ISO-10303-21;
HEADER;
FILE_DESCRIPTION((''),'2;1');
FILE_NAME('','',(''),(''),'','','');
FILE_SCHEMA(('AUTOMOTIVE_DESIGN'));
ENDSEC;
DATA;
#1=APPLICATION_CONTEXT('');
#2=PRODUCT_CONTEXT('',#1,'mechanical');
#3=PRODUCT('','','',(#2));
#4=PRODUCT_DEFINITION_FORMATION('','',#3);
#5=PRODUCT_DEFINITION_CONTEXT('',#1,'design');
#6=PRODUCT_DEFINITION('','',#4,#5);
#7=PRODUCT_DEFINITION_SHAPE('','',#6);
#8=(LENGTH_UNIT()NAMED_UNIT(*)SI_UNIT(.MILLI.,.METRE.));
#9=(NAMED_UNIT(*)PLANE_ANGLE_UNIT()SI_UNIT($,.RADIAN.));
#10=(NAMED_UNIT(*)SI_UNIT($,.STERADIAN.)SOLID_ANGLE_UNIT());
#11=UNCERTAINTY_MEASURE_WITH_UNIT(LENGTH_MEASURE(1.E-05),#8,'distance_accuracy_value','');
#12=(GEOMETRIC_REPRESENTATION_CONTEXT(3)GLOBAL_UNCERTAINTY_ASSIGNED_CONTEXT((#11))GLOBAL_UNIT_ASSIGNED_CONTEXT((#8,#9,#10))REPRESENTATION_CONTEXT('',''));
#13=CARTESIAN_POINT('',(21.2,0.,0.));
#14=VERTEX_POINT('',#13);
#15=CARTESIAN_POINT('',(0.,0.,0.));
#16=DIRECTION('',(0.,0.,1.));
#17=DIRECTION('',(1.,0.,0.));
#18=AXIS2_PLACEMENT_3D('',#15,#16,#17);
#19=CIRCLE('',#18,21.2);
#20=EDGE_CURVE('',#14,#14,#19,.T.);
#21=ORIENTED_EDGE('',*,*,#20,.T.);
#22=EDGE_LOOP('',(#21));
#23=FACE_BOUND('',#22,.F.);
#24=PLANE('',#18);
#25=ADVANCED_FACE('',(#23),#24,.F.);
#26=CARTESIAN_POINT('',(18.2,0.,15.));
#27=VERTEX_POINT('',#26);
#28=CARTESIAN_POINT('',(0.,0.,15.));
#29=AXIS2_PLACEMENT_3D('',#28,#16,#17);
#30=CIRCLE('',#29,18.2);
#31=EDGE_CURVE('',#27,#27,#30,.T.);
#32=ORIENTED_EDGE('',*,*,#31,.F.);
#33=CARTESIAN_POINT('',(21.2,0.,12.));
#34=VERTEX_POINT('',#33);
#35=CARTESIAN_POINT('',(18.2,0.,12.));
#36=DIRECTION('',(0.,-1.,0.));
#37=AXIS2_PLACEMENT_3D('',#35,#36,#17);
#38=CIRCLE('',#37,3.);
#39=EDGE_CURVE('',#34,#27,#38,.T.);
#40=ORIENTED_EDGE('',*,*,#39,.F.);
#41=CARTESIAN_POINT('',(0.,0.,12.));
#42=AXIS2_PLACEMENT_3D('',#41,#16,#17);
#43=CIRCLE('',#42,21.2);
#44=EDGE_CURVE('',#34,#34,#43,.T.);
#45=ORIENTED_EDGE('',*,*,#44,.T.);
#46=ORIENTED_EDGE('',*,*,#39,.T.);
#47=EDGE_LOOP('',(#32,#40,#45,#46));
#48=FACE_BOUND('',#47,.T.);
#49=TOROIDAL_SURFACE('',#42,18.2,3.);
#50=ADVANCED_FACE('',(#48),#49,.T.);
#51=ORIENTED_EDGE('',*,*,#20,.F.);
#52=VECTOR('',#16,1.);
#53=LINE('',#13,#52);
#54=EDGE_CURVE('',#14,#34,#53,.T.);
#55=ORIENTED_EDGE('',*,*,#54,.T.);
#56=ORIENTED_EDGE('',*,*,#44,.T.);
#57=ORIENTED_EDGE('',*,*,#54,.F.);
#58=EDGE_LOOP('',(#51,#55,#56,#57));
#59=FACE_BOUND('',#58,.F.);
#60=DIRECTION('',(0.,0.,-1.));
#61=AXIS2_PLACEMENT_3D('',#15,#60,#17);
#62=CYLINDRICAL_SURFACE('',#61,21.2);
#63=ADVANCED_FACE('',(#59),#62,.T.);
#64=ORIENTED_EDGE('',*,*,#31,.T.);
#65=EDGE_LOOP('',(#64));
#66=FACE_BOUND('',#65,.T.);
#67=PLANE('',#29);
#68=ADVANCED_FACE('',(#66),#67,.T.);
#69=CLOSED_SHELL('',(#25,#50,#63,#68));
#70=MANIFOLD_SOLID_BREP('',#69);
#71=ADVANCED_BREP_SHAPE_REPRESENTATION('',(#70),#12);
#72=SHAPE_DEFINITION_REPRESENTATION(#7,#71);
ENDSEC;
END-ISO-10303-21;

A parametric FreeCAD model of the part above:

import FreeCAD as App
import Part
import Sketcher
from FreeCAD import Vector
Q = App.Units.Quantity


def edges_at(feature, points):
    """Names of the edges that pass closest to the given points."""
    edges = feature.Shape.Edges
    near = lambda p: min(range(len(edges)), key=lambda i: edges[i].distToShape(Part.Vertex(*p))[0])
    return sorted({f"Edge{near(p) + 1}" for p in points})

doc = App.newDocument("Part")
body = doc.addObject("PartDesign::Body", "Body")

sketch1 = body.newObject("Sketcher::SketchObject", "Sketch")
sketch1.AttachmentSupport = (doc.getObject("XY_Plane"), [""])
sketch1.MapMode = "FlatFace"
sketch1.addGeometry(Part.Circle(Vector(0, 0, 0), Vector(0, 0, 1), 21), False)
sketch1.addConstraint(Sketcher.Constraint("Coincident", 0, 3, -1, 1))
sketch1.addConstraint(Sketcher.Constraint("Diameter", 0, Q("42.4 mm")))
pad1 = body.newObject("PartDesign::Pad", "Pad")
pad1.Profile = sketch1
pad1.Length = 15
doc.recompute()

fillet = body.newObject("PartDesign::Fillet", "Fillet")
fillet.Base = (pad1, edges_at(pad1, [(-21.2, 0, 15)]))
fillet.Radius = 3

doc.recompute()
